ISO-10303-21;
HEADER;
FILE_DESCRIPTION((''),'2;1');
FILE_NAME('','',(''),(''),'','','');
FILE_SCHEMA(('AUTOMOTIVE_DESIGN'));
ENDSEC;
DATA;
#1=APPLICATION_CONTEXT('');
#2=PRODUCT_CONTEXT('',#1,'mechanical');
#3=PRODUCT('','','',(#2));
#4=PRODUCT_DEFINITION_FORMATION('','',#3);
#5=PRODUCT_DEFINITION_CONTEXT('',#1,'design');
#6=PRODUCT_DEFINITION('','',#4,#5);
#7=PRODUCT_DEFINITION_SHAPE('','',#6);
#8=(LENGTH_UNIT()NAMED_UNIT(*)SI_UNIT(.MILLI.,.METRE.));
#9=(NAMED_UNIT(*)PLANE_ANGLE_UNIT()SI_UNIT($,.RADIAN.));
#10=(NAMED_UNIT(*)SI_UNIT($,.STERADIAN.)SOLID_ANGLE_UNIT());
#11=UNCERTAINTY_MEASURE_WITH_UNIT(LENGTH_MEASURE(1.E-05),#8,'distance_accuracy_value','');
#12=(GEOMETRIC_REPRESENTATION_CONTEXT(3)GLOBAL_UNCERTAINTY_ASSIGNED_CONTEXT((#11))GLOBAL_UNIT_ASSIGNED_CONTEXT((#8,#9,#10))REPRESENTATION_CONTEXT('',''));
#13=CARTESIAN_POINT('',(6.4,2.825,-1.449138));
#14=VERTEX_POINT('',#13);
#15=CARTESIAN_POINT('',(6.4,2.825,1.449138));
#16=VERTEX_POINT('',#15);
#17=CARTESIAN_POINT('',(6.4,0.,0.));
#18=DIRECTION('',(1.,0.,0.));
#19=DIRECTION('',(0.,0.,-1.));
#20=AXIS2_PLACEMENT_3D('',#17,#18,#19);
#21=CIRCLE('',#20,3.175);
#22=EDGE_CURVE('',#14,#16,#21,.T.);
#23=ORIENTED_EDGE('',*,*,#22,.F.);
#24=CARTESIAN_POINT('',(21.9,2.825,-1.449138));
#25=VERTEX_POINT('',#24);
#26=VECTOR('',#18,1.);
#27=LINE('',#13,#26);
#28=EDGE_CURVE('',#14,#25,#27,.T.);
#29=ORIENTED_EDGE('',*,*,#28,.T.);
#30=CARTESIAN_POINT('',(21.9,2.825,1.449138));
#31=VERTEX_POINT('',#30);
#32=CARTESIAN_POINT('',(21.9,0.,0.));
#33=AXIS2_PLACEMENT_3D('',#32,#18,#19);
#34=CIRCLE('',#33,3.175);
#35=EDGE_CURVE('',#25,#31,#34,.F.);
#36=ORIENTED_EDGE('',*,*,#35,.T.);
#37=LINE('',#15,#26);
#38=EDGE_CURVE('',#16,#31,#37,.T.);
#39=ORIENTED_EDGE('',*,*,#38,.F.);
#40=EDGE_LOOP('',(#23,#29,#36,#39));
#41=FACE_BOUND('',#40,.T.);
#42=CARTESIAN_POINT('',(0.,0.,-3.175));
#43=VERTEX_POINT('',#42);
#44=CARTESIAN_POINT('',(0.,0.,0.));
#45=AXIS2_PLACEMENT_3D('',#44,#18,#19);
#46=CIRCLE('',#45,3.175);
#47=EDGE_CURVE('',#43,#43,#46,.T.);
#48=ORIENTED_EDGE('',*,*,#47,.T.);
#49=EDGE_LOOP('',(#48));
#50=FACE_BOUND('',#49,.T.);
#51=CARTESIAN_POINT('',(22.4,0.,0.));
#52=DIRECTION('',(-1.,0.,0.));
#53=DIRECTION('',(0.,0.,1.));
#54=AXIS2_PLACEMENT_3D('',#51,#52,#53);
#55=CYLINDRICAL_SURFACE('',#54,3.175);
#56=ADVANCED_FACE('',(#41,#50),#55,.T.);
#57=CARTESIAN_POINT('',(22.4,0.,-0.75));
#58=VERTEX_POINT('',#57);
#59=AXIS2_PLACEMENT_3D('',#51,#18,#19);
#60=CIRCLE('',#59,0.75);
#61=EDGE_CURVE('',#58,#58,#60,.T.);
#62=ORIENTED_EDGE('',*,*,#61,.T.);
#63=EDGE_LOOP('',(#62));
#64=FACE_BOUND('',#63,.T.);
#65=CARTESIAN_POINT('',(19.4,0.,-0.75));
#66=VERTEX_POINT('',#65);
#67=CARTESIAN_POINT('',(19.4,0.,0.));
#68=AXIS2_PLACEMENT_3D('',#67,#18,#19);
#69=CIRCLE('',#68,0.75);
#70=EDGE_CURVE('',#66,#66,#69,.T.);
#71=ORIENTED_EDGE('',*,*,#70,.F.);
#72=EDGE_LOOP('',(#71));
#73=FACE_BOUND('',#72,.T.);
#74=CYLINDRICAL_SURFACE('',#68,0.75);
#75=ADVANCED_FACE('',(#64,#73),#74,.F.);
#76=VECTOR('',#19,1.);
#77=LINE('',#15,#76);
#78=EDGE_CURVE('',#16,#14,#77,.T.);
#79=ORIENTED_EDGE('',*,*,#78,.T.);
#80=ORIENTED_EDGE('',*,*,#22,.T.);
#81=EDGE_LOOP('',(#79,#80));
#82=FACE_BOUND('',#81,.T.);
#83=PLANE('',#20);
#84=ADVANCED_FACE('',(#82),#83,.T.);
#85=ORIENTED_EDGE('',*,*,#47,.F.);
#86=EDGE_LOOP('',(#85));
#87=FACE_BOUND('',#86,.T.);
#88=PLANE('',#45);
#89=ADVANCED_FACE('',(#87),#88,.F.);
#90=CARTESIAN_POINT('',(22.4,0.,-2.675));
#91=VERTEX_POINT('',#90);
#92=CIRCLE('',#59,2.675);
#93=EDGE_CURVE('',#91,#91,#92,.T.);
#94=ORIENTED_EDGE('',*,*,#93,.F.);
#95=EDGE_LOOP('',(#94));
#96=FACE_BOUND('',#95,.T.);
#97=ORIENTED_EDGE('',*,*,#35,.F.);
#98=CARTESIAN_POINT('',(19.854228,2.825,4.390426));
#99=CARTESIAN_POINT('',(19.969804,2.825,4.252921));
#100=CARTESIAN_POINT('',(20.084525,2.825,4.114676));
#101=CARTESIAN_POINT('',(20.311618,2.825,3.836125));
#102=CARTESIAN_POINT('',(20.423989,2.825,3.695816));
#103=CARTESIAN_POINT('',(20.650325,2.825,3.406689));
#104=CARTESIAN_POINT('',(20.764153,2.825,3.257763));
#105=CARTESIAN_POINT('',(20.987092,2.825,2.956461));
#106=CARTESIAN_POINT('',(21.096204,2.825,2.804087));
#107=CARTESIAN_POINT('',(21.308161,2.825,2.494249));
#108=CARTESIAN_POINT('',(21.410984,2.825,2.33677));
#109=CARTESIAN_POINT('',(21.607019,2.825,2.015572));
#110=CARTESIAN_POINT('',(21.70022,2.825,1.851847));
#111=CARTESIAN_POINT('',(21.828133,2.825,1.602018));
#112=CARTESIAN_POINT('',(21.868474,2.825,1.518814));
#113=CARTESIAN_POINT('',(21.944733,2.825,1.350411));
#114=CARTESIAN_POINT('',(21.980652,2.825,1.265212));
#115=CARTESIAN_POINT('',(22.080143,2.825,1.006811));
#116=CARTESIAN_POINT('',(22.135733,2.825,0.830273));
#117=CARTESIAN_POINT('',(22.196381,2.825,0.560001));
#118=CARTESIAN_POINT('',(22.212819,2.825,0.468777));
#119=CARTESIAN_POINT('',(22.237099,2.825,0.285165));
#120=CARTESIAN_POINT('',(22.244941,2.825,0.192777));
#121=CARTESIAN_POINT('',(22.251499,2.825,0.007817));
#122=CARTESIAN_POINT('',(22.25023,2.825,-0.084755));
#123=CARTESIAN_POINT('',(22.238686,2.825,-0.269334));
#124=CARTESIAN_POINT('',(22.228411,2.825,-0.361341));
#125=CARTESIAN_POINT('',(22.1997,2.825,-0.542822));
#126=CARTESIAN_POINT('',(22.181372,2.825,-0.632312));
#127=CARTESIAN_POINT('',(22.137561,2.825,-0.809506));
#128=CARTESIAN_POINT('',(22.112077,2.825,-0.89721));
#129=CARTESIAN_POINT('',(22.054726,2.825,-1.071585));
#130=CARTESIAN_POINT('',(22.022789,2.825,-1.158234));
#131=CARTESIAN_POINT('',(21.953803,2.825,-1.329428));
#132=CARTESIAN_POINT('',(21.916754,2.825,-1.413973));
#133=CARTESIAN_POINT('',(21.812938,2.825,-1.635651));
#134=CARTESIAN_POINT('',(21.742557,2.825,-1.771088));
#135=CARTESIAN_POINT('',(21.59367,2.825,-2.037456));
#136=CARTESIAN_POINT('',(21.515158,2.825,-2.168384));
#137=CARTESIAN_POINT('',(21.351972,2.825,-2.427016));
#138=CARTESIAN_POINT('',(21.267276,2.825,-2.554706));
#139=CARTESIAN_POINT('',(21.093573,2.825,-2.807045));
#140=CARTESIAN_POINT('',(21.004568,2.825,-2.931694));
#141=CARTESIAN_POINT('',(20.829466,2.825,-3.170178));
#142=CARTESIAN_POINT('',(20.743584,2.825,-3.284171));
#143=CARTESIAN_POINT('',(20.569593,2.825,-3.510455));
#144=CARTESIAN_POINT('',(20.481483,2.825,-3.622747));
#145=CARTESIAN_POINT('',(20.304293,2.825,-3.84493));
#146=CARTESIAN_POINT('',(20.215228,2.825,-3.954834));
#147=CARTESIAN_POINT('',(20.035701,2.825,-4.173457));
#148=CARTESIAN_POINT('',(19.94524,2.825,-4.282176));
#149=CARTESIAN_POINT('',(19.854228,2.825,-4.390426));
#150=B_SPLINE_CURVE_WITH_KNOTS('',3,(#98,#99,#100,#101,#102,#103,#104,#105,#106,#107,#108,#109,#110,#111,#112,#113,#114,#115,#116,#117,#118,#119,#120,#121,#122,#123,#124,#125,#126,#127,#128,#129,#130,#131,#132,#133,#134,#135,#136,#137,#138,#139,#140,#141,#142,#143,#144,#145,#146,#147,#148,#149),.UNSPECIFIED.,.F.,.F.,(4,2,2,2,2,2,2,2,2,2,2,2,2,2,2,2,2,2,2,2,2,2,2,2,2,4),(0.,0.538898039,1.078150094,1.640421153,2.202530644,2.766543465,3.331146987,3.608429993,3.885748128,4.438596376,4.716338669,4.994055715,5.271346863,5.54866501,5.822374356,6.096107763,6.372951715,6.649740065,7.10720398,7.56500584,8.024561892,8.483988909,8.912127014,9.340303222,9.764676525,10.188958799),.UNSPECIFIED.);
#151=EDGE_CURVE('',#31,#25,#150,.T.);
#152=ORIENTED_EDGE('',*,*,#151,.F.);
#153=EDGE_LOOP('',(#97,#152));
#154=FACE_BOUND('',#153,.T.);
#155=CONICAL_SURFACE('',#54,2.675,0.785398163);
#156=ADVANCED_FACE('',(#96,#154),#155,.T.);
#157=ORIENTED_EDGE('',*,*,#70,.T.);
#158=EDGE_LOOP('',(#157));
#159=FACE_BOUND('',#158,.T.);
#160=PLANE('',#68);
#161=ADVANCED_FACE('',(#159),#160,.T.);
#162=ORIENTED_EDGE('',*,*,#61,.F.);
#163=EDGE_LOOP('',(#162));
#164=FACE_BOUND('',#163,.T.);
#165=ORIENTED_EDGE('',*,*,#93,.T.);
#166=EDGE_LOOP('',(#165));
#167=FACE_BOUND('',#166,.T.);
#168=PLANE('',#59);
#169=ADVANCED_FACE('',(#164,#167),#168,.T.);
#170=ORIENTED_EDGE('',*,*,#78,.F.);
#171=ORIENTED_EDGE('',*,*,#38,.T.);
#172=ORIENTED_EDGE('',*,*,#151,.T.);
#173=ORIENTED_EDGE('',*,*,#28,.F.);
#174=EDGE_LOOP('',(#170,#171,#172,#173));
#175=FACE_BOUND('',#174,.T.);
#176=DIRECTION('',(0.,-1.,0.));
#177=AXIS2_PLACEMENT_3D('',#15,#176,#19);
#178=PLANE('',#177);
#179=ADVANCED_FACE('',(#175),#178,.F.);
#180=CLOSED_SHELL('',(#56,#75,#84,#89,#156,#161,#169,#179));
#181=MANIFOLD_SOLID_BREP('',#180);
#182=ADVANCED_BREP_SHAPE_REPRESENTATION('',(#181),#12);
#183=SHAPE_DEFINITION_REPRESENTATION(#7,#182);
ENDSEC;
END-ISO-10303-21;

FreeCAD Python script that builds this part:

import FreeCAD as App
import Part
import Sketcher


def edges_at(feature, points):
    """Names of the edges that pass closest to the given points."""
    edges = feature.Shape.Edges
    near = lambda p: min(range(len(edges)), key=lambda i: edges[i].distToShape(Part.Vertex(*p))[0])
    return sorted({f"Edge{near(p) + 1}" for p in points})


def add_polygon(sketch, points):
    """Adds a closed chain of lines whose ends are joined by coincident constraints."""
    first, n = sketch.GeometryCount, len(points)
    for a, b in zip(points, points[1:] + points[:1]):
        sketch.addGeometry(Part.LineSegment(App.Vector(*a, 0), App.Vector(*b, 0)), False)
    for i in range(n):
        sketch.addConstraint(Sketcher.Constraint("Coincident", first + i, 2, first + (i + 1) % n, 1))

doc = App.newDocument("Part")
body = doc.addObject("PartDesign::Body", "Body")

# Sketch on YZ plane
sketch1 = body.newObject("Sketcher::SketchObject", "Sketch")
sketch1.AttachmentSupport = (doc.getObject("YZ_Plane"), [""])
sketch1.MapMode = "FlatFace"
sketch1.addGeometry(Part.Circle(App.Vector(0, 0, 0), App.Vector(0, 0, 1), 3.175), False)
sketch1.addConstraint([
    Sketcher.Constraint("Coincident", 0, 3, -1, 1),
    Sketcher.Constraint("Diameter", 0, 6.35),
])
pad1 = body.newObject("PartDesign::Pad", "Pad")
pad1.Profile = sketch1
pad1.Length = 22.4
doc.recompute()

chamfer = body.newObject("PartDesign::Chamfer", "Chamfer")
chamfer.Base = (pad1, edges_at(pad1, [(22.4, 0, 3.175)]))
chamfer.Size = 0.5

# Sketch on YZ plane
sketch2 = body.newObject("Sketcher::SketchObject", "Sketch001")
sketch2.AttachmentSupport = (doc.getObject("YZ_Plane"), [""])
sketch2.MapMode = "FlatFace"
sketch2.AttachmentOffset = App.Placement(App.Vector(0, 0, 22.4), App.Rotation())
add_polygon(sketch2, [(3.175, 1.449138), (2.825, 1.449138), (2.825, -1.449138), (3.175, -1.449138)])  # lines 0-3
sketch2.addConstraint([
    Sketcher.Constraint("Horizontal", 0),
    Sketcher.Constraint("Vertical", 1),
    Sketcher.Constraint("Horizontal", 2),
    Sketcher.Constraint("Vertical", 3),
    Sketcher.Constraint("DistanceX", 0, 2, 0, 1, 0.35),
    Sketcher.Constraint("DistanceX", -1, 1, 0, 2, 2.825),
    Sketcher.Constraint("DistanceY", 1, 2, 1, 1, 2.898275),
    Sketcher.Constraint("DistanceY", -1, 1, 0, 2, 1.449138),
])
pocket1 = body.newObject("PartDesign::Pocket", "Pocket")
pocket1.Profile = sketch2
pocket1.Length = 16

# Sketch on YZ plane
sketch3 = body.newObject("Sketcher::SketchObject", "Sketch002")
sketch3.AttachmentSupport = (doc.getObject("YZ_Plane"), [""])
sketch3.MapMode = "FlatFace"
sketch3.AttachmentOffset = App.Placement(App.Vector(0, 0, 22.4), App.Rotation())
sketch3.addGeometry(Part.Circle(App.Vector(0, 0, 0), App.Vector(0, 0, 1), 0.75), False)
sketch3.addConstraint([
    Sketcher.Constraint("Coincident", 0, 3, -1, 1),
    Sketcher.Constraint("Diameter", 0, 1.5),
])
pocket2 = body.newObject("PartDesign::Pocket", "Pocket001")
pocket2.Profile = sketch3
pocket2.Length = 3

doc.recompute()
